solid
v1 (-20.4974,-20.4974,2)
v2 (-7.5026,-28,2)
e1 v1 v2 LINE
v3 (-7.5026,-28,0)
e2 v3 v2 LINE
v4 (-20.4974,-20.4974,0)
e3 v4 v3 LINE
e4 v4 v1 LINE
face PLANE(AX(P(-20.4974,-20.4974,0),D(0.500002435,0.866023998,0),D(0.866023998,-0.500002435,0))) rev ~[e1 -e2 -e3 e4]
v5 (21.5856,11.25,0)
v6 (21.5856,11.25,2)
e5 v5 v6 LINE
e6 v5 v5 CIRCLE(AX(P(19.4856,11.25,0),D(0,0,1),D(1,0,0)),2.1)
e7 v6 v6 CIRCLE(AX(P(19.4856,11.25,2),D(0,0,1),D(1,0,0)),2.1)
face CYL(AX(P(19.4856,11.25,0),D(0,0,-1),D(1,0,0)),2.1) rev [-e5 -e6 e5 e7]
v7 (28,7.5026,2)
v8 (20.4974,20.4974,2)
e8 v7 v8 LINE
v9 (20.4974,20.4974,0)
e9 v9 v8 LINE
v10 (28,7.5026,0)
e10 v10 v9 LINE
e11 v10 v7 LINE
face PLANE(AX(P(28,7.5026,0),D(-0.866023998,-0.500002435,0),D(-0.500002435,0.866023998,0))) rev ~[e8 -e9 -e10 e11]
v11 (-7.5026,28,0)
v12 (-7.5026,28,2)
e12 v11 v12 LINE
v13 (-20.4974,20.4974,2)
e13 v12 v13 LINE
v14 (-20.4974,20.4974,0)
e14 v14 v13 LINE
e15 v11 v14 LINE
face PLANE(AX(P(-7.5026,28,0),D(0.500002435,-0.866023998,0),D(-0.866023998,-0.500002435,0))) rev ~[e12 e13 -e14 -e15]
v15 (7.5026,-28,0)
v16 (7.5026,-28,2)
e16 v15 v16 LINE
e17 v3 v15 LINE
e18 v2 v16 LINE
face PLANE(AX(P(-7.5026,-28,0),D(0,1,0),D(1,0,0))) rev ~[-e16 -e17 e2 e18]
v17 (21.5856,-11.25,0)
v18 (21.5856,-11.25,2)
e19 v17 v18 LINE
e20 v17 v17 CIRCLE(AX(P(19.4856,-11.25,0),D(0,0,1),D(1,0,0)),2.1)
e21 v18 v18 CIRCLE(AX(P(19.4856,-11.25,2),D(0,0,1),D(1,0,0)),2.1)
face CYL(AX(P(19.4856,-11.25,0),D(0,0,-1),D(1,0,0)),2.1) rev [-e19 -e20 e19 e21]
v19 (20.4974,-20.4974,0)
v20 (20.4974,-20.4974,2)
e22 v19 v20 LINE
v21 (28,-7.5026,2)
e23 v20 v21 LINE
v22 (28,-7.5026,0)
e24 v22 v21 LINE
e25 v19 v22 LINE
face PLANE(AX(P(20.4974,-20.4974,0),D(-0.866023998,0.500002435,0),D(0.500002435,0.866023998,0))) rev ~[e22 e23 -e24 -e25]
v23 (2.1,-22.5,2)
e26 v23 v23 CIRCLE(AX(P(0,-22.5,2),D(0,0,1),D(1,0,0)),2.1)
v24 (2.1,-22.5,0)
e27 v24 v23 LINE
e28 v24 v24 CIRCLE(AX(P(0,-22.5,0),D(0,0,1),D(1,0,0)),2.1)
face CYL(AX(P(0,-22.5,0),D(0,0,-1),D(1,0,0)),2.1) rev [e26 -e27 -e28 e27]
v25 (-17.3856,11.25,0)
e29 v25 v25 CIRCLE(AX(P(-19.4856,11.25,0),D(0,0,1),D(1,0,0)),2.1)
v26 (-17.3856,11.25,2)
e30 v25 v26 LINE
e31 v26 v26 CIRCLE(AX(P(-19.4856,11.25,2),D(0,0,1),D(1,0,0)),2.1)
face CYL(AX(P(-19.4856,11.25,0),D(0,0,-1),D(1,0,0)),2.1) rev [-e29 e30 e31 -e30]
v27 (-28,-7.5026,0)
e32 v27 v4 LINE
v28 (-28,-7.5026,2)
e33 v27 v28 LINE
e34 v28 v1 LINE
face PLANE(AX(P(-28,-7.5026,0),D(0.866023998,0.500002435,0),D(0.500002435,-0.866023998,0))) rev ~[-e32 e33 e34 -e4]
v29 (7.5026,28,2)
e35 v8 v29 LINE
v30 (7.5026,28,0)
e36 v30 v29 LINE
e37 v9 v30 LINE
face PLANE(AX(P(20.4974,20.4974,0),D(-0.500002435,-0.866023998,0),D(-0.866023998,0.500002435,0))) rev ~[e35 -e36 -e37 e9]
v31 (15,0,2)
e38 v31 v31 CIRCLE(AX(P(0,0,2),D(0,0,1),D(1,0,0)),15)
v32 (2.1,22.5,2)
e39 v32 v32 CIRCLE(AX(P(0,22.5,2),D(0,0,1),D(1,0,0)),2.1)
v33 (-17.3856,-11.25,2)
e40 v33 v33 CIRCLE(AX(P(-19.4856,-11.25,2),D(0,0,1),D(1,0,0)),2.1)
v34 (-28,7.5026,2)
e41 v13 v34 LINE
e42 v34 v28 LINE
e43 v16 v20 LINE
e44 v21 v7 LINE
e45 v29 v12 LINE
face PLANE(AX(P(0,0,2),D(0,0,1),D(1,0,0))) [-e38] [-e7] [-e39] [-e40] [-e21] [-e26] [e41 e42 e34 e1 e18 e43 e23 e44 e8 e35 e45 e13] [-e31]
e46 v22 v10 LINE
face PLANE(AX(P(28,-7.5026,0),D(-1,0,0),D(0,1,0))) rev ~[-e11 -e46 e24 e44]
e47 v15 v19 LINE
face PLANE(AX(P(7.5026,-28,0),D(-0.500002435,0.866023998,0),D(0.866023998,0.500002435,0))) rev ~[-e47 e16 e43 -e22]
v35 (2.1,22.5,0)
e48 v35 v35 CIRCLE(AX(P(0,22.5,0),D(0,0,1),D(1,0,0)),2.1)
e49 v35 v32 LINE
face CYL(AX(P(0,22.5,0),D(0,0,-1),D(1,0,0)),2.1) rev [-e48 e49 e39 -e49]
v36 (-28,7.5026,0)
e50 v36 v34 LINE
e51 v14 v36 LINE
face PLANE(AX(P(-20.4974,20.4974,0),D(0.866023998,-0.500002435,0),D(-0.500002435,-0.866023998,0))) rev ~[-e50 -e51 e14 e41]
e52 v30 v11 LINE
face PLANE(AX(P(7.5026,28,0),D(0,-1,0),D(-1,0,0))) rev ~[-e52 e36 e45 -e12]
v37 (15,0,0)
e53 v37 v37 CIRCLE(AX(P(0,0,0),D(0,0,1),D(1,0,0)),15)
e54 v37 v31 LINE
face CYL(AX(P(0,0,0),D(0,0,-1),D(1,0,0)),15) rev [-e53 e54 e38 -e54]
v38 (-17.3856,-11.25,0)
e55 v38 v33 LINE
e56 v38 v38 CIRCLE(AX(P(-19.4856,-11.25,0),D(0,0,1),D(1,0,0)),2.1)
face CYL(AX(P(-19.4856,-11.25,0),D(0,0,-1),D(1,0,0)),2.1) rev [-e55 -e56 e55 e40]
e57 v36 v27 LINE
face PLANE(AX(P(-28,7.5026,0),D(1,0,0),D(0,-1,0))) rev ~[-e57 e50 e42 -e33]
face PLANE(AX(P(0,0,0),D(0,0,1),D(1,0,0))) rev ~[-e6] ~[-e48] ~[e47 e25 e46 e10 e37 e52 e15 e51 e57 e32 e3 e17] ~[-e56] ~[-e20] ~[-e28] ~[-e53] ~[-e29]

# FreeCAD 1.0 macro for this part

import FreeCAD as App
import Part
import Sketcher
Q = App.Units.Quantity

doc = App.newDocument("Part")
body = doc.addObject("PartDesign::Body", "Body")

# Sketch on XY plane
sketch1 = body.newObject("Sketcher::SketchObject", "Sketch")
sketch1.AttachmentSupport = (doc.getObject("XY_Plane"), [""])
sketch1.MapMode = "FlatFace"
sketch1.addGeometry(Part.LineSegment(App.Vector(7.5, 28, 0), App.Vector(-7.5, 28, 0)), False)
sketch1.addGeometry(Part.LineSegment(App.Vector(-7.5, 28, 0), App.Vector(-20.5, 20.5, 0)), False)
sketch1.addGeometry(Part.LineSegment(App.Vector(-20.5, 20.5, 0), App.Vector(-28, 7.5, 0)), False)
sketch1.addGeometry(Part.LineSegment(App.Vector(-28, 7.5, 0), App.Vector(-28, -7.5, 0)), False)
sketch1.addGeometry(Part.LineSegment(App.Vector(-28, -7.5, 0), App.Vector(-20.5, -20.5, 0)), False)
sketch1.addGeometry(Part.LineSegment(App.Vector(-20.5, -20.5, 0), App.Vector(-7.5, -28, 0)), False)
sketch1.addGeometry(Part.LineSegment(App.Vector(-7.5, -28, 0), App.Vector(7.5, -28, 0)), False)
sketch1.addGeometry(Part.LineSegment(App.Vector(7.5, -28, 0), App.Vector(20.5, -20.5, 0)), False)
sketch1.addGeometry(Part.LineSegment(App.Vector(20.5, -20.5, 0), App.Vector(28, -7.5, 0)), False)
sketch1.addGeometry(Part.LineSegment(App.Vector(28, -7.5, 0), App.Vector(28, 7.5, 0)), False)
sketch1.addGeometry(Part.LineSegment(App.Vector(28, 7.5, 0), App.Vector(20.5, 20.5, 0)), False)
sketch1.addGeometry(Part.LineSegment(App.Vector(20.5, 20.5, 0), App.Vector(7.5, 28, 0)), False)
sketch1.addGeometry(Part.Circle(App.Vector(-19.5, -11.2, 0), App.Vector(0, 0, 1), 2.1), False)
sketch1.addGeometry(Part.Circle(App.Vector(0, -22.5, 0), App.Vector(0, 0, 1), 2.1), False)
sketch1.addGeometry(Part.Circle(App.Vector(19.5, -11.2, 0), App.Vector(0, 0, 1), 2.1), False)
sketch1.addGeometry(Part.Circle(App.Vector(-19.5, 11.2, 0), App.Vector(0, 0, 1), 2.1), False)
sketch1.addGeometry(Part.Circle(App.Vector(0, 0, 0), App.Vector(0, 0, 1), 15), False)
sketch1.addGeometry(Part.Circle(App.Vector(19.5, 11.2, 0), App.Vector(0, 0, 1), 2.1), False)
sketch1.addGeometry(Part.Circle(App.Vector(0, 22.5, 0), App.Vector(0, 0, 1), 2.1), False)
sketch1.addConstraint(Sketcher.Constraint("Coincident", 0, 2, 1, 1))
sketch1.addConstraint(Sketcher.Constraint("Coincident", 1, 2, 2, 1))
sketch1.addConstraint(Sketcher.Constraint("Coincident", 2, 2, 3, 1))
sketch1.addConstraint(Sketcher.Constraint("Coincident", 3, 2, 4, 1))
sketch1.addConstraint(Sketcher.Constraint("Coincident", 4, 2, 5, 1))
sketch1.addConstraint(Sketcher.Constraint("Coincident", 5, 2, 6, 1))
sketch1.addConstraint(Sketcher.Constraint("Coincident", 6, 2, 7, 1))
sketch1.addConstraint(Sketcher.Constraint("Coincident", 7, 2, 8, 1))
sketch1.addConstraint(Sketcher.Constraint("Coincident", 8, 2, 9, 1))
sketch1.addConstraint(Sketcher.Constraint("Coincident", 9, 2, 10, 1))
sketch1.addConstraint(Sketcher.Constraint("Coincident", 10, 2, 11, 1))
sketch1.addConstraint(Sketcher.Constraint("Coincident", 11, 2, 0, 1))
sketch1.addConstraint(Sketcher.Constraint("Horizontal", 0))
sketch1.addConstraint(Sketcher.Constraint("Vertical", 3))
sketch1.addConstraint(Sketcher.Constraint("Horizontal", 6))
sketch1.addConstraint(Sketcher.Constraint("Vertical", 9))
sketch1.addConstraint(Sketcher.Constraint("Coincident", 16, 3, -1, 1))
sketch1.addConstraint(Sketcher.Constraint("Equal", 12, 13))
sketch1.addConstraint(Sketcher.Constraint("Equal", 13, 14))
sketch1.addConstraint(Sketcher.Constraint("Equal", 14, 15))
sketch1.addConstraint(Sketcher.Constraint("Equal", 15, 17))
sketch1.addConstraint(Sketcher.Constraint("Equal", 17, 18))
sketch1.addConstraint(Sketcher.Constraint("Symmetric", 14, 3, 15, 3, -1, 1))
sketch1.addConstraint(Sketcher.Constraint("Symmetric", 12, 3, 17, 3, -1, 1))
sketch1.addConstraint(Sketcher.Constraint("Symmetric", 13, 3, 18, 3, -1, 1))
sketch1.addConstraint(Sketcher.Constraint("Symmetric", 0, 2, 6, 2, -1, 1))
sketch1.addConstraint(Sketcher.Constraint("Symmetric", 1, 2, 7, 2, -1, 1))
sketch1.addConstraint(Sketcher.Constraint("Symmetric", 2, 2, 8, 2, -1, 1))
sketch1.addConstraint(Sketcher.Constraint("Symmetric", 4, 2, 10, 2, -1, 1))
sketch1.addConstraint(Sketcher.Constraint("Symmetric", 12, 3, 14, 3, -2))
sketch1.addConstraint(Sketcher.Constraint("Symmetric", 4, 2, 7, 2, -2))
sketch1.addConstraint(Sketcher.Constraint("PointOnObject", 13, 3, -2))
sketch1.addConstraint(Sketcher.Constraint("Perpendicular", 1, 4))
sketch1.addConstraint(Sketcher.Constraint("Perpendicular", 2, 5))
sketch1.addConstraint(Sketcher.Constraint("Perpendicular", 7, 10))
sketch1.addConstraint(Sketcher.Constraint("Perpendicular", 8, 11))
sketch1.addConstraint(Sketcher.Constraint("Horizontal", 3, 2, 8, 2))
sketch1.addConstraint(Sketcher.Constraint("Equal", 6, 3))
sketch1.addConstraint(Sketcher.Constraint("Equal", 1, 2))
sketch1.addConstraint(Sketcher.Constraint("Diameter", 16, Q("30 mm")))
sketch1.addConstraint(Sketcher.Constraint("Diameter", 12, Q("4.2 mm")))
sketch1.addConstraint(Sketcher.Constraint("Angle", 5, Q("-30.0002 deg")))
sketch1.addConstraint(Sketcher.Constraint("DistanceY", -1, 1, 0, 2, Q("28 mm")))
sketch1.addConstraint(Sketcher.Constraint("DistanceY", 3, 2, 1, 2, Q("28 mm")))
sketch1.addConstraint(Sketcher.Constraint("DistanceY", 13, 3, -1, 1, Q("22.5 mm")))
sketch1.addConstraint(Sketcher.Constraint("DistanceY", 12, 3, 15, 3, Q("22.5 mm")))
sketch1.addConstraint(Sketcher.Constraint("DistanceX", 15, 3, 0, 2, Q("11.983 mm")))
pad1 = body.newObject("PartDesign::Pad", "Pad")
pad1.Profile = sketch1
pad1.Length = 2

doc.recompute()
